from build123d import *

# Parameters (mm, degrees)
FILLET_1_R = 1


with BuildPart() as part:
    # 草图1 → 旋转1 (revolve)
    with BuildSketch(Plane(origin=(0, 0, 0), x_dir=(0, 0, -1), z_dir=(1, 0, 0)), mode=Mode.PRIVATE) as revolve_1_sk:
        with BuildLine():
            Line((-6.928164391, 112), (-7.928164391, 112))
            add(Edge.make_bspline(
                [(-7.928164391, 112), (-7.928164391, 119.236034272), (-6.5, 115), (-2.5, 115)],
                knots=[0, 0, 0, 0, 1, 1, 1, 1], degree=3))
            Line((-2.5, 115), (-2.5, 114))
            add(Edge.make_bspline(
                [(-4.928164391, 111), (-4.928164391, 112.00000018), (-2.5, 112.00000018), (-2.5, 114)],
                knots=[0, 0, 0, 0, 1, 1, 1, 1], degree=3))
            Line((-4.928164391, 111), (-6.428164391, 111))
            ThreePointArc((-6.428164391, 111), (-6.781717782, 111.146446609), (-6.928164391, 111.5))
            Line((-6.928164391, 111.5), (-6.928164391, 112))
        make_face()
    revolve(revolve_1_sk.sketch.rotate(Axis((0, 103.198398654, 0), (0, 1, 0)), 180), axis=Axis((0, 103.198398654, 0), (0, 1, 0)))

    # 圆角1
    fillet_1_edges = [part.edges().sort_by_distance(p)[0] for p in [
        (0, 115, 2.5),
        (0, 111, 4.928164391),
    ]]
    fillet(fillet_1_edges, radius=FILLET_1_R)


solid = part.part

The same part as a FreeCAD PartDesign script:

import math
import FreeCAD as App
import Part
import Sketcher

V = App.Vector
Q = App.Units.Quantity


def edges_at(feature, points):
    """Names of the edges that pass closest to the given points."""
    edges = feature.Shape.Edges
    near = lambda p: min(range(len(edges)), key=lambda i: edges[i].distToShape(Part.Vertex(*p))[0])
    return sorted({f"Edge{near(p) + 1}" for p in points})

doc = App.newDocument("Part")
body = doc.addObject("PartDesign::Body", "Body")

# Sketch on YZ plane
sketch1 = body.newObject("Sketcher::SketchObject", "Sketch")
sketch1.AttachmentSupport = (doc.getObject("YZ_Plane"), [""])
sketch1.MapMode = "FlatFace"
sketch1.addGeometry(Part.LineSegment(V(112, 7.928164, 0), V(112, 6.928164, 0)), False)
sketch1.addGeometry(Part.LineSegment(V(112, 6.928164, 0), V(111.5, 6.928164, 0)), False)
sketch1.addGeometry(Part.ArcOfCircle(Part.Circle(V(111.5, 6.428164, 0), V(0, 0, 1), 0.5), math.radians(90), math.radians(180)), False)
sketch1.addGeometry(Part.LineSegment(V(111, 6.428164, 0), V(111, 4.928164, 0)), False)
sketch1.addGeometry(Part.BSplineCurve([V(111, 4.928164, 0), V(112, 4.928164, 0), V(112, 2.5, 0), V(114, 2.5, 0)], [4, 4], [0, 1], False, 3, [1, 1, 1, 1], False), False)
sketch1.addGeometry(Part.LineSegment(V(114, 2.5, 0), V(115, 2.5, 0)), False)
sketch1.addGeometry(Part.BSplineCurve([V(112, 7.928164, 0), V(119.236034, 7.928164, 0), V(115, 6.5, 0), V(115, 2.5, 0)], [4, 4], [0, 1], False, 3, [1, 1, 1, 1], False), False)
sketch1.addConstraint(Sketcher.Constraint("Block", 4))
sketch1.addConstraint(Sketcher.Constraint("Block", 6))
sketch1.addConstraint(Sketcher.Constraint("Coincident", 0, 2, 1, 1))
sketch1.addConstraint(Sketcher.Constraint("Tangent", 1, 2, 2, 1))
sketch1.addConstraint(Sketcher.Constraint("Tangent", 2, 2, 3, 1))
sketch1.addConstraint(Sketcher.Constraint("Coincident", 3, 2, 4, 1))
sketch1.addConstraint(Sketcher.Constraint("Coincident", 4, 2, 5, 1))
sketch1.addConstraint(Sketcher.Constraint("Coincident", 5, 2, 6, 2))
sketch1.addConstraint(Sketcher.Constraint("Coincident", 6, 1, 0, 1))
sketch1.addConstraint(Sketcher.Constraint("Vertical", 0))
sketch1.addConstraint(Sketcher.Constraint("Horizontal", 1))
sketch1.addConstraint(Sketcher.Constraint("Vertical", 3))
sketch1.addConstraint(Sketcher.Constraint("Equal", 5, 0))
sketch1.addConstraint(Sketcher.Constraint("Radius", 2, Q("0.5 mm")))
revolution = body.newObject("PartDesign::Revolution", "Revolution")
revolution.Profile = sketch1
revolution.ReferenceAxis = (sketch1, ["H_Axis"])
revolution.Angle = 360
doc.recompute()

fillet = body.newObject("PartDesign::Fillet", "Fillet")
fillet.Base = (revolution, edges_at(revolution, [(0, 115, 2.5), (0, 111, 4.928)]))
fillet.Radius = 1

doc.recompute()
